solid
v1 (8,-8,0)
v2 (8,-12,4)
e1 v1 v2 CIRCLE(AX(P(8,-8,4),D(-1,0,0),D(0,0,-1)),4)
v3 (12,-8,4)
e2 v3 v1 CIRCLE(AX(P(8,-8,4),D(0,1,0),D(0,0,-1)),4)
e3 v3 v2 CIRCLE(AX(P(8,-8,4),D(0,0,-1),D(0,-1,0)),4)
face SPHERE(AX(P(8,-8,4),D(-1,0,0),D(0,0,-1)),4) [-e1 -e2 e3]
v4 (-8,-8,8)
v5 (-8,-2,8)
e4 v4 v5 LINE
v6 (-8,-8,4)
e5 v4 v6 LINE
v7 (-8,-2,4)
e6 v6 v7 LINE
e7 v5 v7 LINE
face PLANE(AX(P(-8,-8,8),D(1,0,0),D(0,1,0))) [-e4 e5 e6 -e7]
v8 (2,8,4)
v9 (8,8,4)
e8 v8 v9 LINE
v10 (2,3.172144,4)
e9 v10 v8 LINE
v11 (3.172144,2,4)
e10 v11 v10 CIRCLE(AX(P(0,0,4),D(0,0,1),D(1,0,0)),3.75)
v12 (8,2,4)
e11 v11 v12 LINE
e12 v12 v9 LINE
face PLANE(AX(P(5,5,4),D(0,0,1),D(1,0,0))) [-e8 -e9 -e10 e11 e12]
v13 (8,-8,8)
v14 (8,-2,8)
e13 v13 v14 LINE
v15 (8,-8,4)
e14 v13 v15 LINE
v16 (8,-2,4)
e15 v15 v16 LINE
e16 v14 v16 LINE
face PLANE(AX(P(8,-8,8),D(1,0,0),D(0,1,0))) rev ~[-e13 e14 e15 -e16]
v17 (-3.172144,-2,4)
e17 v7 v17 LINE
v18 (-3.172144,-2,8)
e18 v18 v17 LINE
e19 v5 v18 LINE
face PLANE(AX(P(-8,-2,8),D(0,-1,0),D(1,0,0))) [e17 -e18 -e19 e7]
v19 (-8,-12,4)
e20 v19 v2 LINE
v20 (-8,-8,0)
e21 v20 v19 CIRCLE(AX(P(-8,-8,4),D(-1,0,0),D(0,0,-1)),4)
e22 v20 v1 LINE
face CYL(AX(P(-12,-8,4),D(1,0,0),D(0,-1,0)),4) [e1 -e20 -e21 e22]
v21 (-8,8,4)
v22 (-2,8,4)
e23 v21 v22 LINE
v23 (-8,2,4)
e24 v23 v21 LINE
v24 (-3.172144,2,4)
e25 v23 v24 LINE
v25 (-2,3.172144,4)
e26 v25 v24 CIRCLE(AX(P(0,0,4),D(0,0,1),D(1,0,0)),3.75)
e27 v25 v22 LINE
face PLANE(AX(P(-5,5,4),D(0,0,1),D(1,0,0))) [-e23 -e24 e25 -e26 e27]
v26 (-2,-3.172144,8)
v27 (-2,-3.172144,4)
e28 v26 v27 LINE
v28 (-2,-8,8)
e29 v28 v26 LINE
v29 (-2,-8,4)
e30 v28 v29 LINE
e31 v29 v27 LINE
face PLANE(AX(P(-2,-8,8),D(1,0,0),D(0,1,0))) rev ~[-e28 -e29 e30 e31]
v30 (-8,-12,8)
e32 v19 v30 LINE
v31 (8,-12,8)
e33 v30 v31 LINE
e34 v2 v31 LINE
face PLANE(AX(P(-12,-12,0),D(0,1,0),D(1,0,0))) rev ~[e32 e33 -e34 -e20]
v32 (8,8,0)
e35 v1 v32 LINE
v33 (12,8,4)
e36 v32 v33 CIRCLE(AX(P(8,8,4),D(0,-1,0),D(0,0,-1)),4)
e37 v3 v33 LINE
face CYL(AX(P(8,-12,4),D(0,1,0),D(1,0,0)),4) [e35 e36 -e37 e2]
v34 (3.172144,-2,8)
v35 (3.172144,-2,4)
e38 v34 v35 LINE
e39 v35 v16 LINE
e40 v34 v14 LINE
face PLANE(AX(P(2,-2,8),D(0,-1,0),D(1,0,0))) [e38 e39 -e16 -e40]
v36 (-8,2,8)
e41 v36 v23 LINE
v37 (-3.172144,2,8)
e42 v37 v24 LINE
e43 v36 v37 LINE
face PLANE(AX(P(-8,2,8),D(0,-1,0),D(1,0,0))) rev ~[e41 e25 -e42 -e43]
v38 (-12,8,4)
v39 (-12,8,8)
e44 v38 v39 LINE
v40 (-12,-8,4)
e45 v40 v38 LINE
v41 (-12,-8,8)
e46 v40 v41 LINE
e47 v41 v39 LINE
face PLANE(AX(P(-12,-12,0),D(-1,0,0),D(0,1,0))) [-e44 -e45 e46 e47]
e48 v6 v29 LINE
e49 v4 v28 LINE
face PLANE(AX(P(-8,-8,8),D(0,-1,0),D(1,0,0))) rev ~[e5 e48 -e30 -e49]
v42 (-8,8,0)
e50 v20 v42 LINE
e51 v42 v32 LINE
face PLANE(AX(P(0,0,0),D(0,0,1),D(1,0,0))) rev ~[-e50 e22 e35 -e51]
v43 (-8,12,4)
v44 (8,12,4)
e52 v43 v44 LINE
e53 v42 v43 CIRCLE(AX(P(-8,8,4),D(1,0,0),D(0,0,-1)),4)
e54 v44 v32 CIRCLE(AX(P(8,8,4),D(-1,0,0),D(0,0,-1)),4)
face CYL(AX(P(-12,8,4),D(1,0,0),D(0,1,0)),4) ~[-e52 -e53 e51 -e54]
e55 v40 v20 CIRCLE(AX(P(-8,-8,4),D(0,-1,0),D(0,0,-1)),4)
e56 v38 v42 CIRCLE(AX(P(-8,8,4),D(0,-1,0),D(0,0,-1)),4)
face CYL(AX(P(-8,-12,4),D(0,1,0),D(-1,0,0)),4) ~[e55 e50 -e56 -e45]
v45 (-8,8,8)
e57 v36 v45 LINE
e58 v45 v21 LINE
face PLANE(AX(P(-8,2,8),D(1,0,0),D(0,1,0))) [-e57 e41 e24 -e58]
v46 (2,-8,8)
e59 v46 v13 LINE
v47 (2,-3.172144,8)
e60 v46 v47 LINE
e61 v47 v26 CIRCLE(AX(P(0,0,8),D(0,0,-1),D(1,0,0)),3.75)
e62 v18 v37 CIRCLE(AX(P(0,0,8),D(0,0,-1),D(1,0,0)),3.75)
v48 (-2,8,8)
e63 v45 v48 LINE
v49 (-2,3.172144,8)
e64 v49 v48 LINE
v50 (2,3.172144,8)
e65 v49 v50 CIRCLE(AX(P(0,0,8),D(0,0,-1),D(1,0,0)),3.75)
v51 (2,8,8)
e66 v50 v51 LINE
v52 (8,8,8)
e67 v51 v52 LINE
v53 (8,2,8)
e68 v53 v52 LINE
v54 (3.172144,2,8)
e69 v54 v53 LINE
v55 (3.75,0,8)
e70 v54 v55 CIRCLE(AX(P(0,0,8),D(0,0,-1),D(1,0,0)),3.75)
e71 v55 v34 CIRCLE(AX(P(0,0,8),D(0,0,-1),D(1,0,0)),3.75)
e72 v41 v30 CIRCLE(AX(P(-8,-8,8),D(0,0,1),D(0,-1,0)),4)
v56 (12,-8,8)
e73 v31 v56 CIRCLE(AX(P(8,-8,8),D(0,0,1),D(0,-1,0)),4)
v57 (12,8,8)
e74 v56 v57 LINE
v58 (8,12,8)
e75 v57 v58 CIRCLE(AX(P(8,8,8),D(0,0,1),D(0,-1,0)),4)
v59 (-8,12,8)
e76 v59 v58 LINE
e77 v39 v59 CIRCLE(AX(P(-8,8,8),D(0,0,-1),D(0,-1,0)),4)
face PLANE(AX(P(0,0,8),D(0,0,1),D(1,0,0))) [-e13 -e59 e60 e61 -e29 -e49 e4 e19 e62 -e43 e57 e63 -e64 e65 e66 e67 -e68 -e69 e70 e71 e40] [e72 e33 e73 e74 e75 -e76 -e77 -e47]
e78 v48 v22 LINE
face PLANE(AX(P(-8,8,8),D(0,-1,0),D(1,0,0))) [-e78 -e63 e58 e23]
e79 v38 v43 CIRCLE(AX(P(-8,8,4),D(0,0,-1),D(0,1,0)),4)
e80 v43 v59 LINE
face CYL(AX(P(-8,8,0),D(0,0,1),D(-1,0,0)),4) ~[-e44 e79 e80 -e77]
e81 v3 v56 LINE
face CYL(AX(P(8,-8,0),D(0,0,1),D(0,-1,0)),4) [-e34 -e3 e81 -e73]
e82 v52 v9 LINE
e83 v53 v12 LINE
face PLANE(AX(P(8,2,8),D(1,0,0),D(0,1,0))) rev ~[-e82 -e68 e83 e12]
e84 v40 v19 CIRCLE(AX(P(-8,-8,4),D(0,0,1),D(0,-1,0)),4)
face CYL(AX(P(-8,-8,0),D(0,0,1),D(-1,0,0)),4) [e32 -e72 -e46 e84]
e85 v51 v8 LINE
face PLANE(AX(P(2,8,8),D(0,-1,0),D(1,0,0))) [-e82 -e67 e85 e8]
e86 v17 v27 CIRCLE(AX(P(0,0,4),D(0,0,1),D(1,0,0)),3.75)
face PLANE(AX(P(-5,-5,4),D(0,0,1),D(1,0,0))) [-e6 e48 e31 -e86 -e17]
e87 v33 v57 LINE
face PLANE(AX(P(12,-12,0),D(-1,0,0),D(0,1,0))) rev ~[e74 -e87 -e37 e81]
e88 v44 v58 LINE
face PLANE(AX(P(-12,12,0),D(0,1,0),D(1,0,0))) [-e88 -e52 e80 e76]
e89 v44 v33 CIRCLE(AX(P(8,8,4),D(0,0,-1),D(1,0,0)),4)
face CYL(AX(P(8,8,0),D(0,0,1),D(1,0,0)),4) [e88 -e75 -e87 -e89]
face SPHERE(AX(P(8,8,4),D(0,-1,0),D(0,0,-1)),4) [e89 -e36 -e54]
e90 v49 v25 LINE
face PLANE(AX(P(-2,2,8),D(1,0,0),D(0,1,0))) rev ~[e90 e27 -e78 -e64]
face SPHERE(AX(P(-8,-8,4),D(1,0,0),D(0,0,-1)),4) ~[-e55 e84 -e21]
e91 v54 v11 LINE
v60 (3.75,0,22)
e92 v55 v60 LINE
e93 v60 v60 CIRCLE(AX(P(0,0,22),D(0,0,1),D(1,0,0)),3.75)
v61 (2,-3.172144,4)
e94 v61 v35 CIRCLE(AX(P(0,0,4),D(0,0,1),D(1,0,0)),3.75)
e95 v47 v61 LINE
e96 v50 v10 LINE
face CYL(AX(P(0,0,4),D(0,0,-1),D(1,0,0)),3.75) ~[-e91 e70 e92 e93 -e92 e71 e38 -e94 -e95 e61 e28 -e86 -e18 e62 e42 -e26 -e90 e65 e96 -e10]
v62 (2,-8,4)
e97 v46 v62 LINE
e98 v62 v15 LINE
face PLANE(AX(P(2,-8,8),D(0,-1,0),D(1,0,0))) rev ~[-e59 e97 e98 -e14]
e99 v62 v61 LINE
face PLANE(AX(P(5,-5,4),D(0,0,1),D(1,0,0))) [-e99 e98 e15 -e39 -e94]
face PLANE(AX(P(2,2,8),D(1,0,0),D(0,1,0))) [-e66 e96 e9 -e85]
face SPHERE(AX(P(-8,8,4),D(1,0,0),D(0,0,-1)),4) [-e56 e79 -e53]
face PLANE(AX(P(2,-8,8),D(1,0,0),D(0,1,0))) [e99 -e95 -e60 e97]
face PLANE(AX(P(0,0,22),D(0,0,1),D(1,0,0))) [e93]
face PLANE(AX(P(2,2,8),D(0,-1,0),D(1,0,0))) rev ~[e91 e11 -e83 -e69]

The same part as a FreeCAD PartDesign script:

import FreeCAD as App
import Part
import Sketcher
Q = App.Units.Quantity


def edges_at(feature, points):
    """Names of the edges that pass closest to the given points."""
    edges = feature.Shape.Edges
    near = lambda p: min(range(len(edges)), key=lambda i: edges[i].distToShape(Part.Vertex(*p))[0])
    return sorted({f"Edge{near(p) + 1}" for p in points})


def add_polygon(sketch, points):
    """Adds a closed chain of lines whose ends are joined by coincident constraints."""
    first, n = sketch.GeometryCount, len(points)
    for a, b in zip(points, points[1:] + points[:1]):
        sketch.addGeometry(Part.LineSegment(App.Vector(*a, 0), App.Vector(*b, 0)), False)
    for i in range(n):
        sketch.addConstraint(Sketcher.Constraint("Coincident", first + i, 2, first + (i + 1) % n, 1))

doc = App.newDocument("Part")
body = doc.addObject("PartDesign::Body", "Body")

# Sketch on XY plane
sketch1 = doc.addObject("Sketcher::SketchObject", "Sketch")
body.addObject(sketch1)
sketch1.AttachmentSupport = (doc.XY_Plane, [""])
sketch1.MapMode = "FlatFace"
add_polygon(sketch1, [(-12, 12), (-12, -12), (12, -12), (12, 12)])  # lines 0-3
sketch1.addConstraint(Sketcher.Constraint("Vertical", 0))
sketch1.addConstraint(Sketcher.Constraint("Horizontal", 1))
sketch1.addConstraint(Sketcher.Constraint("Vertical", 2))
sketch1.addConstraint(Sketcher.Constraint("Horizontal", 3))
sketch1.addConstraint(Sketcher.Constraint("Symmetric", 0, 2, 2, 2, -1, 1))
sketch1.addConstraint(Sketcher.Constraint("Equal", 3, 0))
sketch1.addConstraint(Sketcher.Constraint("DistanceX", 1, 1, 1, 2, Q("24 mm")))
pad1 = doc.addObject("PartDesign::Pad", "Pad")
body.addObject(pad1)
pad1.Profile = sketch1
pad1.Length = 8
doc.recompute()

fillet = doc.addObject("PartDesign::Fillet", "Fillet")
body.addObject(fillet)
fillet.Base = (pad1, edges_at(pad1, [
    (0, -12, 0),
    (12, 0, 0),
    (0, 12, 0),
    (-12, 0, 0),
    (12, -12, 4),
    (-12, -12, 4),
    (-12, 12, 4),
    (12, 12, 4),
]))
fillet.Radius = 4

# Sketch on XY plane
sketch2 = doc.addObject("Sketcher::SketchObject", "Sketch001")
body.addObject(sketch2)
sketch2.AttachmentSupport = (doc.XY_Plane, [""])
sketch2.MapMode = "FlatFace"
sketch2.AttachmentOffset = App.Placement(App.Vector(0, 0, 8), App.Rotation())
add_polygon(sketch2, [(2, 8), (2, 2), (8, 2), (8, 8)])  # lines 0-3
add_polygon(sketch2, [(-8, 8), (-8, 2), (-2, 2), (-2, 8)])  # lines 4-7
add_polygon(sketch2, [(2, -2), (2, -8), (8, -8), (8, -2)])  # lines 8-11
add_polygon(sketch2, [(-8, -2), (-8, -8), (-2, -8), (-2, -2)])  # lines 12-15
sketch2.addConstraint(Sketcher.Constraint("Vertical", 0))
sketch2.addConstraint(Sketcher.Constraint("Horizontal", 1))
sketch2.addConstraint(Sketcher.Constraint("Vertical", 2))
sketch2.addConstraint(Sketcher.Constraint("Horizontal", 3))
sketch2.addConstraint(Sketcher.Constraint("Vertical", 4))
sketch2.addConstraint(Sketcher.Constraint("Horizontal", 5))
sketch2.addConstraint(Sketcher.Constraint("Vertical", 6))
sketch2.addConstraint(Sketcher.Constraint("Horizontal", 7))
sketch2.addConstraint(Sketcher.Constraint("Vertical", 8))
sketch2.addConstraint(Sketcher.Constraint("Horizontal", 9))
sketch2.addConstraint(Sketcher.Constraint("Vertical", 10))
sketch2.addConstraint(Sketcher.Constraint("Horizontal", 11))
sketch2.addConstraint(Sketcher.Constraint("Vertical", 12))
sketch2.addConstraint(Sketcher.Constraint("Horizontal", 13))
sketch2.addConstraint(Sketcher.Constraint("Vertical", 14))
sketch2.addConstraint(Sketcher.Constraint("Horizontal", 15))
sketch2.addConstraint(Sketcher.Constraint("Symmetric", 6, 2, 8, 2, -1, 1))
sketch2.addConstraint(Sketcher.Constraint("Symmetric", 4, 2, 10, 2, -1, 1))
sketch2.addConstraint(Sketcher.Constraint("Symmetric", 2, 2, 12, 2, -1, 1))
sketch2.addConstraint(Sketcher.Constraint("Symmetric", 0, 2, 14, 2, -1, 1))
sketch2.addConstraint(Sketcher.Constraint("Symmetric", 1, 2, 4, 2, -2))
sketch2.addConstraint(Sketcher.Constraint("Symmetric", 3, 2, 6, 2, -2))
sketch2.addConstraint(Sketcher.Constraint("Equal", 15, 0))
sketch2.addConstraint(Sketcher.Constraint("DistanceX", 1, 1, 1, 2, Q("6 mm")))
sketch2.addConstraint(Sketcher.Constraint("DistanceX", -1, 1, 0, 2, Q("2 mm")))
sketch2.addConstraint(Sketcher.Constraint("DistanceY", -1, 1, 0, 2, Q("2 mm")))
pocket1 = doc.addObject("PartDesign::Pocket", "Pocket")
body.addObject(pocket1)
pocket1.Profile = sketch2
pocket1.Length = 4

# Sketch on XY plane
sketch3 = doc.addObject("Sketcher::SketchObject", "Sketch002")
body.addObject(sketch3)
sketch3.AttachmentSupport = (doc.XY_Plane, [""])
sketch3.MapMode = "FlatFace"
sketch3.AttachmentOffset = App.Placement(App.Vector(0, 0, 4), App.Rotation())
sketch3.addGeometry(Part.Circle(App.Vector(0, 0, 0), App.Vector(0, 0, 1), 3.8), False)
sketch3.addConstraint(Sketcher.Constraint("Coincident", 0, 3, -1, 1))
sketch3.addConstraint(Sketcher.Constraint("Diameter", 0, Q("7.5 mm")))
pad2 = doc.addObject("PartDesign::Pad", "Pad001")
body.addObject(pad2)
pad2.Profile = sketch3
pad2.Length = 18

doc.recompute()
